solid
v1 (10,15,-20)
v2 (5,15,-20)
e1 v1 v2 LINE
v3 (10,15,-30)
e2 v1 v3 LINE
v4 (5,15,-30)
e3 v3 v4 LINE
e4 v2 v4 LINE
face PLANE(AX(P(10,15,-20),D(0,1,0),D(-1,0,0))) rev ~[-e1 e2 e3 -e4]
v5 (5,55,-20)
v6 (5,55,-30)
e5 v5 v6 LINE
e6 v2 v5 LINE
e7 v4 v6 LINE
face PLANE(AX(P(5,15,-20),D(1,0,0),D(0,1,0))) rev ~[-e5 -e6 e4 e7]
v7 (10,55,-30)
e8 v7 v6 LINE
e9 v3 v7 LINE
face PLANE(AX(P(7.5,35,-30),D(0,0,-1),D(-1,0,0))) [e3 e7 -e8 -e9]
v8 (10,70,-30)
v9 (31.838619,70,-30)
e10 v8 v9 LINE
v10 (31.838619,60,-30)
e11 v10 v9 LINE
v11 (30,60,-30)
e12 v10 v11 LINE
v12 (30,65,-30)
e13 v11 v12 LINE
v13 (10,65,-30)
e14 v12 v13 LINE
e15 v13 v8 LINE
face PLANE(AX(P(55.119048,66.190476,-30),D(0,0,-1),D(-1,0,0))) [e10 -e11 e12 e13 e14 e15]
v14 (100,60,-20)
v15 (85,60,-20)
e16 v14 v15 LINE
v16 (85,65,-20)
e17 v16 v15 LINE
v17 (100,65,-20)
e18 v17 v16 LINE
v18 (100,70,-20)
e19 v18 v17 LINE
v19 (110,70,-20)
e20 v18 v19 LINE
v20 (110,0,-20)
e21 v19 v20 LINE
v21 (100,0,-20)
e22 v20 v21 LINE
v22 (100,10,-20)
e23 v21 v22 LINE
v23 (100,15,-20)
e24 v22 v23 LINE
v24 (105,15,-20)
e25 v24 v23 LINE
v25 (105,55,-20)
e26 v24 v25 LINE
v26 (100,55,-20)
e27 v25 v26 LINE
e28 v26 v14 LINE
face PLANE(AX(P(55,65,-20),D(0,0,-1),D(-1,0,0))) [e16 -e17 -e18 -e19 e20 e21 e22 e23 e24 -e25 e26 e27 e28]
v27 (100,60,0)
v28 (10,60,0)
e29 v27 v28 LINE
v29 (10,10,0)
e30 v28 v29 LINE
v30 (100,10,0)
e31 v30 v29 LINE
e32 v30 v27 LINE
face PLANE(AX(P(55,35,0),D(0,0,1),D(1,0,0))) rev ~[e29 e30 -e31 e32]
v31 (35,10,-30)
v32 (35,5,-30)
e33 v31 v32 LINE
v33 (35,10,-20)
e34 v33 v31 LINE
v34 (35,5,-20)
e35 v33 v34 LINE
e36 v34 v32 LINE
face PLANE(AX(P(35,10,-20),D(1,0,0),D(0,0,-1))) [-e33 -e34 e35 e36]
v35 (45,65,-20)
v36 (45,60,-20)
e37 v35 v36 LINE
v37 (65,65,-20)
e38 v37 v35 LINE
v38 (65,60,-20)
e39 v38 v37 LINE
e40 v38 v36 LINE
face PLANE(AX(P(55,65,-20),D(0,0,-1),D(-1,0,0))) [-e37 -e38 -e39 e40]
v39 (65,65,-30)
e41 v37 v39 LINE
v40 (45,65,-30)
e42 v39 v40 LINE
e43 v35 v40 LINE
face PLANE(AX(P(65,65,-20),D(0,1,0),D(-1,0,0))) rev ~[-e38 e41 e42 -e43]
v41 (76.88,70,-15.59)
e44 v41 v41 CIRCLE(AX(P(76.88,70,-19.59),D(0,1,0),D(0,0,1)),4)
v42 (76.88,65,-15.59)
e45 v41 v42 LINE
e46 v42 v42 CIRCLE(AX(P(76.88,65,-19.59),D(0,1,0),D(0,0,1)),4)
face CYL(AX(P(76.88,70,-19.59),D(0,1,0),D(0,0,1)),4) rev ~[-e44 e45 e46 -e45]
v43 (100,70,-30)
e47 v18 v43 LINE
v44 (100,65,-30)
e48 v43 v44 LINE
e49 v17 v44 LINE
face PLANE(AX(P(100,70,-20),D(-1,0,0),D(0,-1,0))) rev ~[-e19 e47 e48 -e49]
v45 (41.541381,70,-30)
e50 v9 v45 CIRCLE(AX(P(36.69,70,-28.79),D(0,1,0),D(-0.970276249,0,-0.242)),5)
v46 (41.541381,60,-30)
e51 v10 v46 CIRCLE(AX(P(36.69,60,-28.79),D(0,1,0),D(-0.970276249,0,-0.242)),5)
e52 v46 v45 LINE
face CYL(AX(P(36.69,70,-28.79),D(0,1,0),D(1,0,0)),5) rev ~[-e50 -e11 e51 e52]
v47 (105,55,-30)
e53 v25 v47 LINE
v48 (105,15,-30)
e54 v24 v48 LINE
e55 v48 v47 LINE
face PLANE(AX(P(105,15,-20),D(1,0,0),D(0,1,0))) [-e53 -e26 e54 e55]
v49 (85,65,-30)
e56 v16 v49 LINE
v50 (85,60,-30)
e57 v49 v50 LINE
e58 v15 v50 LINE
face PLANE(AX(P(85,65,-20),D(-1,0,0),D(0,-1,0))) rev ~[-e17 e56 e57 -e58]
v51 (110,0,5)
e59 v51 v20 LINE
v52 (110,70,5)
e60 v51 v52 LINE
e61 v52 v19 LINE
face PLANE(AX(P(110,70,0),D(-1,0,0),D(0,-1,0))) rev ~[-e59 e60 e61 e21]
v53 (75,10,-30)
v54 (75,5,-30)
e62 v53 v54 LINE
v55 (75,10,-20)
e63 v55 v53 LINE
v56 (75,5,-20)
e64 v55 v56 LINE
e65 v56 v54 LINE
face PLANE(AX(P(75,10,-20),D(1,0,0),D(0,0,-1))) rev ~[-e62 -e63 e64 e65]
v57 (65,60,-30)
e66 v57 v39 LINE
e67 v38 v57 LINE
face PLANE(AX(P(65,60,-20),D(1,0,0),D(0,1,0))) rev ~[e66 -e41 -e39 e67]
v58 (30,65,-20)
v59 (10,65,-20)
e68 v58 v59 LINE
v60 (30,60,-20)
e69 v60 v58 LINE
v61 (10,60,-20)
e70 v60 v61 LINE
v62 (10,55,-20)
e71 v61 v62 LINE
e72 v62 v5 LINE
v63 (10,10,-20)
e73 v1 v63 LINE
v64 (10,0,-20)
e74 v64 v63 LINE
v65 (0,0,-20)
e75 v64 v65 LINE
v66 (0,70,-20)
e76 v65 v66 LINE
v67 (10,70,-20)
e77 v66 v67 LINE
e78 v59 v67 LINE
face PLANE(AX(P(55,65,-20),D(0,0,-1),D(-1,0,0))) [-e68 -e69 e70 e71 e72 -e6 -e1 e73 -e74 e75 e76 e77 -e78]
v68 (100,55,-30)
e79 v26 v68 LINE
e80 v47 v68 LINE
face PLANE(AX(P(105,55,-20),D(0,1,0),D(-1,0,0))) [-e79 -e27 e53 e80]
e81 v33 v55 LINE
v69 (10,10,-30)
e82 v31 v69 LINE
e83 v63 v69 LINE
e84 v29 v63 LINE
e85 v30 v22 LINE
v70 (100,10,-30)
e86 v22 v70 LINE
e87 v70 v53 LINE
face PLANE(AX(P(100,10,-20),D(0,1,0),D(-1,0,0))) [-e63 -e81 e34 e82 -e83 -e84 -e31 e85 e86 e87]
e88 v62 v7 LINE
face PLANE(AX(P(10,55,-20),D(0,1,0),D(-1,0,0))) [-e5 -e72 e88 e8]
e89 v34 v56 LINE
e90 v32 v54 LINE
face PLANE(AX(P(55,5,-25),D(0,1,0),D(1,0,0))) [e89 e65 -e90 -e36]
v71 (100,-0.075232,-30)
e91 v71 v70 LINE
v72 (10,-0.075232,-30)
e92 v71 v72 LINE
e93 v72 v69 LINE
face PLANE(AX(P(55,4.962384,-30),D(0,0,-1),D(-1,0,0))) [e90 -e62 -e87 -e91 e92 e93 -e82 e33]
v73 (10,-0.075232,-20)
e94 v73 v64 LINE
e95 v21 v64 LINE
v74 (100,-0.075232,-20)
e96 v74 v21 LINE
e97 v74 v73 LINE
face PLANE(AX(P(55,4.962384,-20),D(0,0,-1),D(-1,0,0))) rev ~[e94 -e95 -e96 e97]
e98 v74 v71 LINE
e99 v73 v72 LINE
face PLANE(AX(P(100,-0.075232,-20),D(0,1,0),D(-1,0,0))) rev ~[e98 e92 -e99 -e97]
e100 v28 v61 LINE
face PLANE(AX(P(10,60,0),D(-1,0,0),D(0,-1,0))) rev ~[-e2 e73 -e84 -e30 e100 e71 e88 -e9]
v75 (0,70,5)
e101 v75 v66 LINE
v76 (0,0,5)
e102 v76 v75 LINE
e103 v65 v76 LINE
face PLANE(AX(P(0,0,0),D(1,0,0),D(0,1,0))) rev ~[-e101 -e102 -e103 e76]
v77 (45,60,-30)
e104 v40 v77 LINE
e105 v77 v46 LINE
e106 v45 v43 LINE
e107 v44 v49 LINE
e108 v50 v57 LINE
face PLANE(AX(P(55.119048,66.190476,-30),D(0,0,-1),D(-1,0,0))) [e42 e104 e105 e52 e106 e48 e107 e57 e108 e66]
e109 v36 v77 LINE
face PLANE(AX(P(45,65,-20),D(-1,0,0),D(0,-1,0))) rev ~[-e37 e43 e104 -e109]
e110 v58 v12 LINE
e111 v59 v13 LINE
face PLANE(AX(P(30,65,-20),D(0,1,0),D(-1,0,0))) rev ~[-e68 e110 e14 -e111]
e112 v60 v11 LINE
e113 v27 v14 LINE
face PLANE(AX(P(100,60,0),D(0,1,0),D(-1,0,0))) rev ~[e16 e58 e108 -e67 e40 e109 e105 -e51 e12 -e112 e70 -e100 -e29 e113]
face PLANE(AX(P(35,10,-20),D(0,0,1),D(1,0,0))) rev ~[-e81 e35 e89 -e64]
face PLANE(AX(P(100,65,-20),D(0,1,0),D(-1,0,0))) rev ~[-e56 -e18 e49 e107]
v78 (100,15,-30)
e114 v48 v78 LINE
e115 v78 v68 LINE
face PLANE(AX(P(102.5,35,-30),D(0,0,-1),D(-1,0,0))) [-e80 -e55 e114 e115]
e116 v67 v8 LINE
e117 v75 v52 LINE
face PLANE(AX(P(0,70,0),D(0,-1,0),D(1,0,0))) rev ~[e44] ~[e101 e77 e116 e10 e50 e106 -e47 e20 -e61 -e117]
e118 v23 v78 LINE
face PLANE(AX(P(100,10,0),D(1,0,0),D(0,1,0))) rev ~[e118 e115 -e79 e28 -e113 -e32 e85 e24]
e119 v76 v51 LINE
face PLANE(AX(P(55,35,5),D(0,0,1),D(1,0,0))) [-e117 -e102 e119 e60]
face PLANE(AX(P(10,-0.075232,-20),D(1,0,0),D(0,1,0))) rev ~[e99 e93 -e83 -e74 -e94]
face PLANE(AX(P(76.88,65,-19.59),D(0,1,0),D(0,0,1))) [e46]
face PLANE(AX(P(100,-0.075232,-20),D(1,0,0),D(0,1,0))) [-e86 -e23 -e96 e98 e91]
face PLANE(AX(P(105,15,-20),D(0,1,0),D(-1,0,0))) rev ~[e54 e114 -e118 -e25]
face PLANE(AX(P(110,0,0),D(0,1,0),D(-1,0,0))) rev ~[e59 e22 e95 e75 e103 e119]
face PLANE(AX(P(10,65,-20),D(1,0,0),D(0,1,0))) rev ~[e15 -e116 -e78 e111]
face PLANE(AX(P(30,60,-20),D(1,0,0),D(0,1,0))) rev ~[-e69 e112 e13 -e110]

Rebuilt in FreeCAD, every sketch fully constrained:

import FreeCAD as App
import Part
import Sketcher

doc = App.newDocument("Part")
body = doc.addObject("PartDesign::Body", "Body")

sketch1 = doc.addObject("Sketcher::SketchObject", "Sketch")
body.addObject(sketch1)
sketch1.AttachmentSupport = (doc.XY_Plane, [""])
sketch1.MapMode = "FlatFace"
sketch1.addGeometry(Part.LineSegment(App.Vector(0, 70, 0), App.Vector(0, 0, 0)), False)
sketch1.addGeometry(Part.LineSegment(App.Vector(0, 0, 0), App.Vector(110, 0, 0)), False)
sketch1.addGeometry(Part.LineSegment(App.Vector(110, 0, 0), App.Vector(110, 70, 0)), False)
sketch1.addGeometry(Part.LineSegment(App.Vector(110, 70, 0), App.Vector(0, 70, 0)), False)
sketch1.addConstraint(Sketcher.Constraint("Coincident", 0, 2, 1, 1))
sketch1.addConstraint(Sketcher.Constraint("Coincident", 1, 2, 2, 1))
sketch1.addConstraint(Sketcher.Constraint("Coincident", 2, 2, 3, 1))
sketch1.addConstraint(Sketcher.Constraint("Coincident", 3, 2, 0, 1))
sketch1.addConstraint(Sketcher.Constraint("Vertical", 0))
sketch1.addConstraint(Sketcher.Constraint("Horizontal", 1))
sketch1.addConstraint(Sketcher.Constraint("Vertical", 2))
sketch1.addConstraint(Sketcher.Constraint("Horizontal", 3))
sketch1.addConstraint(Sketcher.Constraint("Coincident", 0, 2, -1, 1))
sketch1.addConstraint(Sketcher.Constraint("DistanceX", 1, 1, 1, 2, 110.0))
sketch1.addConstraint(Sketcher.Constraint("DistanceY", 0, 2, 0, 1, 70.0))
pad1 = doc.addObject("PartDesign::Pad", "Pad")
body.addObject(pad1)
pad1.Profile = sketch1
pad1.Length = 5

sketch2 = doc.addObject("Sketcher::SketchObject", "Sketch001")
body.addObject(sketch2)
sketch2.AttachmentSupport = (doc.XY_Plane, [""])
sketch2.MapMode = "FlatFace"
sketch2.addGeometry(Part.LineSegment(App.Vector(0, 0, 0), App.Vector(0, 70, 0)), False)
sketch2.addGeometry(Part.LineSegment(App.Vector(0, 70, 0), App.Vector(110, 70, 0)), False)
sketch2.addGeometry(Part.LineSegment(App.Vector(110, 70, 0), App.Vector(110, 0, 0)), False)
sketch2.addGeometry(Part.LineSegment(App.Vector(110, 0, 0), App.Vector(0, 0, 0)), False)
sketch2.addGeometry(Part.LineSegment(App.Vector(100, 60, 0), App.Vector(10, 60, 0)), False)
sketch2.addGeometry(Part.LineSegment(App.Vector(10, 60, 0), App.Vector(10, 10, 0)), False)
sketch2.addGeometry(Part.LineSegment(App.Vector(10, 10, 0), App.Vector(100, 10, 0)), False)
sketch2.addGeometry(Part.LineSegment(App.Vector(100, 10, 0), App.Vector(100, 60, 0)), False)
sketch2.addConstraint(Sketcher.Constraint("Coincident", 0, 2, 1, 1))
sketch2.addConstraint(Sketcher.Constraint("Coincident", 1, 2, 2, 1))
sketch2.addConstraint(Sketcher.Constraint("Coincident", 2, 2, 3, 1))
sketch2.addConstraint(Sketcher.Constraint("Coincident", 3, 2, 0, 1))
sketch2.addConstraint(Sketcher.Constraint("Coincident", 4, 2, 5, 1))
sketch2.addConstraint(Sketcher.Constraint("Coincident", 5, 2, 6, 1))
sketch2.addConstraint(Sketcher.Constraint("Coincident", 6, 2, 7, 1))
sketch2.addConstraint(Sketcher.Constraint("Coincident", 7, 2, 4, 1))
sketch2.addConstraint(Sketcher.Constraint("Vertical", 0))
sketch2.addConstraint(Sketcher.Constraint("Horizontal", 1))
sketch2.addConstraint(Sketcher.Constraint("Vertical", 2))
sketch2.addConstraint(Sketcher.Constraint("Horizontal", 3))
sketch2.addConstraint(Sketcher.Constraint("Horizontal", 4))
sketch2.addConstraint(Sketcher.Constraint("Vertical", 5))
sketch2.addConstraint(Sketcher.Constraint("Horizontal", 6))
sketch2.addConstraint(Sketcher.Constraint("Vertical", 7))
sketch2.addConstraint(Sketcher.Constraint("Coincident", 3, 2, -1, 1))
sketch2.addConstraint(Sketcher.Constraint("DistanceX", 1, 1, 1, 2, 110.0))
sketch2.addConstraint(Sketcher.Constraint("DistanceX", 4, 2, 4, 1, 90.0))
sketch2.addConstraint(Sketcher.Constraint("DistanceY", 0, 1, 0, 2, 70.0))
sketch2.addConstraint(Sketcher.Constraint("DistanceY", 5, 2, 5, 1, 50.0))
sketch2.addConstraint(Sketcher.Constraint("DistanceX", -1, 1, 4, 2, 10.0))
sketch2.addConstraint(Sketcher.Constraint("DistanceY", -1, 1, 4, 2, 60.0))
pad2 = doc.addObject("PartDesign::Pad", "Pad001")
body.addObject(pad2)
pad2.Profile = sketch2
pad2.Length = 20
pad2.Reversed = True

sketch3 = doc.addObject("Sketcher::SketchObject", "Sketch002")
body.addObject(sketch3)
sketch3.AttachmentSupport = (doc.XY_Plane, [""])
sketch3.MapMode = "FlatFace"
sketch3.AttachmentOffset = App.Placement(App.Vector(0, 0, -20), App.Rotation())
sketch3.addGeometry(Part.LineSegment(App.Vector(45, 60, 0), App.Vector(30, 60, 0)), False)
sketch3.addGeometry(Part.LineSegment(App.Vector(30, 60, 0), App.Vector(30, 65, 0)), False)
sketch3.addGeometry(Part.LineSegment(App.Vector(30, 65, 0), App.Vector(10, 65, 0)), False)
sketch3.addGeometry(Part.LineSegment(App.Vector(10, 65, 0), App.Vector(10, 70, 0)), False)
sketch3.addGeometry(Part.LineSegment(App.Vector(10, 70, 0), App.Vector(100, 70, 0)), False)
sketch3.addGeometry(Part.LineSegment(App.Vector(100, 70, 0), App.Vector(100, 65, 0)), False)
sketch3.addGeometry(Part.LineSegment(App.Vector(100, 65, 0), App.Vector(85, 65, 0)), False)
sketch3.addGeometry(Part.LineSegment(App.Vector(85, 65, 0), App.Vector(85, 60, 0)), False)
sketch3.addGeometry(Part.LineSegment(App.Vector(85, 60, 0), App.Vector(65, 60, 0)), False)
sketch3.addGeometry(Part.LineSegment(App.Vector(65, 60, 0), App.Vector(65, 65, 0)), False)
sketch3.addGeometry(Part.LineSegment(App.Vector(65, 65, 0), App.Vector(45, 65, 0)), False)
sketch3.addGeometry(Part.LineSegment(App.Vector(45, 65, 0), App.Vector(45, 60, 0)), False)
sketch3.addConstraint(Sketcher.Constraint("Coincident", 0, 2, 1, 1))
sketch3.addConstraint(Sketcher.Constraint("Coincident", 1, 2, 2, 1))
sketch3.addConstraint(Sketcher.Constraint("Coincident", 2, 2, 3, 1))
sketch3.addConstraint(Sketcher.Constraint("Coincident", 3, 2, 4, 1))
sketch3.addConstraint(Sketcher.Constraint("Coincident", 4, 2, 5, 1))
sketch3.addConstraint(Sketcher.Constraint("Coincident", 5, 2, 6, 1))
sketch3.addConstraint(Sketcher.Constraint("Coincident", 6, 2, 7, 1))
sketch3.addConstraint(Sketcher.Constraint("Coincident", 7, 2, 8, 1))
sketch3.addConstraint(Sketcher.Constraint("Coincident", 8, 2, 9, 1))
sketch3.addConstraint(Sketcher.Constraint("Coincident", 9, 2, 10, 1))
sketch3.addConstraint(Sketcher.Constraint("Coincident", 10, 2, 11, 1))
sketch3.addConstraint(Sketcher.Constraint("Coincident", 11, 2, 0, 1))
sketch3.addConstraint(Sketcher.Constraint("Horizontal", 0))
sketch3.addConstraint(Sketcher.Constraint("Vertical", 1))
sketch3.addConstraint(Sketcher.Constraint("Horizontal", 2))
sketch3.addConstraint(Sketcher.Constraint("Vertical", 3))
sketch3.addConstraint(Sketcher.Constraint("Horizontal", 4))
sketch3.addConstraint(Sketcher.Constraint("Vertical", 5))
sketch3.addConstraint(Sketcher.Constraint("Horizontal", 6))
sketch3.addConstraint(Sketcher.Constraint("Vertical", 7))
sketch3.addConstraint(Sketcher.Constraint("Horizontal", 8))
sketch3.addConstraint(Sketcher.Constraint("Vertical", 9))
sketch3.addConstraint(Sketcher.Constraint("Horizontal", 10))
sketch3.addConstraint(Sketcher.Constraint("Vertical", 11))
sketch3.addConstraint(Sketcher.Constraint("Horizontal", 2, 2, 5, 2))
sketch3.addConstraint(Sketcher.Constraint("Horizontal", 0, 2, 7, 2))
sketch3.addConstraint(Sketcher.Constraint("Horizontal", 6, 2, 9, 2))
sketch3.addConstraint(Sketcher.Constraint("Equal", 0, 6))
sketch3.addConstraint(Sketcher.Constraint("Equal", 2, 8))
sketch3.addConstraint(Sketcher.Constraint("Equal", 8, 10))
sketch3.addConstraint(Sketcher.Constraint("Equal", 1, 3))
sketch3.addConstraint(Sketcher.Constraint("DistanceX", 0, 2, 0, 1, 15.0))
sketch3.addConstraint(Sketcher.Constraint("DistanceX", 2, 2, 2, 1, 20.0))
sketch3.addConstraint(Sketcher.Constraint("DistanceY", 1, 1, 1, 2, 5.0))
sketch3.addConstraint(Sketcher.Constraint("DistanceX", -1, 1, 0, 2, 30.0))
sketch3.addConstraint(Sketcher.Constraint("DistanceY", -1, 1, 0, 2, 60.0))
pad3 = doc.addObject("PartDesign::Pad", "Pad002")
body.addObject(pad3)
pad3.Profile = sketch3
pad3.Length = 10
pad3.Reversed = True

sketch4 = doc.addObject("Sketcher::SketchObject", "Sketch003")
body.addObject(sketch4)
sketch4.AttachmentSupport = (doc.XZ_Plane, [""])
sketch4.MapMode = "FlatFace"
sketch4.AttachmentOffset = App.Placement(App.Vector(0, 0, -70), App.Rotation())
sketch4.addGeometry(Part.Circle(App.Vector(36.69, -28.79, 0), App.Vector(0, 0, 1), 5), False)
sketch4.addConstraint(Sketcher.Constraint("Diameter", 0, 10.0))
sketch4.addConstraint(Sketcher.Constraint("DistanceX", -1, 1, 0, 3, 36.69))
sketch4.addConstraint(Sketcher.Constraint("DistanceY", 0, 3, -1, 1, 28.79))
pocket1 = doc.addObject("PartDesign::Pocket", "Pocket")
body.addObject(pocket1)
pocket1.Profile = sketch4
pocket1.Length = 10
pocket1.Reversed = True

sketch5 = doc.addObject("Sketcher::SketchObject", "Sketch004")
body.addObject(sketch5)
sketch5.AttachmentSupport = (doc.XZ_Plane, [""])
sketch5.MapMode = "FlatFace"
sketch5.AttachmentOffset = App.Placement(App.Vector(0, 0, -70), App.Rotation())
sketch5.addGeometry(Part.Circle(App.Vector(76.88, -19.59, 0), App.Vector(0, 0, 1), 4), False)
sketch5.addConstraint(Sketcher.Constraint("Diameter", 0, 8.0))
sketch5.addConstraint(Sketcher.Constraint("DistanceX", -1, 1, 0, 3, 76.88))
sketch5.addConstraint(Sketcher.Constraint("DistanceY", 0, 3, -1, 1, 19.59))
pocket2 = doc.addObject("PartDesign::Pocket", "Pocket001")
body.addObject(pocket2)
pocket2.Profile = sketch5
pocket2.Length = 5
pocket2.Reversed = True

sketch6 = doc.addObject("Sketcher::SketchObject", "Sketch005")
body.addObject(sketch6)
sketch6.AttachmentSupport = (doc.XY_Plane, [""])
sketch6.MapMode = "FlatFace"
sketch6.AttachmentOffset = App.Placement(App.Vector(0, 0, -20), App.Rotation())
sketch6.addGeometry(Part.LineSegment(App.Vector(105, 55, 0), App.Vector(105, 15, 0)), False)
sketch6.addGeometry(Part.LineSegment(App.Vector(105, 15, 0), App.Vector(100, 15, 0)), False)
sketch6.addGeometry(Part.LineSegment(App.Vector(100, 15, 0), App.Vector(100, 55, 0)), False)
sketch6.addGeometry(Part.LineSegment(App.Vector(100, 55, 0), App.Vector(105, 55, 0)), False)
sketch6.addGeometry(Part.LineSegment(App.Vector(10, 55, 0), App.Vector(10, 15, 0)), False)
sketch6.addGeometry(Part.LineSegment(App.Vector(10, 15, 0), App.Vector(5, 15, 0)), False)
sketch6.addGeometry(Part.LineSegment(App.Vector(5, 15, 0), App.Vector(5, 55, 0)), False)
sketch6.addGeometry(Part.LineSegment(App.Vector(5, 55, 0), App.Vector(10, 55, 0)), False)
sketch6.addConstraint(Sketcher.Constraint("Coincident", 0, 2, 1, 1))
sketch6.addConstraint(Sketcher.Constraint("Coincident", 1, 2, 2, 1))
sketch6.addConstraint(Sketcher.Constraint("Coincident", 2, 2, 3, 1))
sketch6.addConstraint(Sketcher.Constraint("Coincident", 3, 2, 0, 1))
sketch6.addConstraint(Sketcher.Constraint("Coincident", 4, 2, 5, 1))
sketch6.addConstraint(Sketcher.Constraint("Coincident", 5, 2, 6, 1))
sketch6.addConstraint(Sketcher.Constraint("Coincident", 6, 2, 7, 1))
sketch6.addConstraint(Sketcher.Constraint("Coincident", 7, 2, 4, 1))
sketch6.addConstraint(Sketcher.Constraint("Vertical", 0))
sketch6.addConstraint(Sketcher.Constraint("Horizontal", 1))
sketch6.addConstraint(Sketcher.Constraint("Vertical", 2))
sketch6.addConstraint(Sketcher.Constraint("Horizontal", 3))
sketch6.addConstraint(Sketcher.Constraint("Vertical", 4))
sketch6.addConstraint(Sketcher.Constraint("Horizontal", 5))
sketch6.addConstraint(Sketcher.Constraint("Vertical", 6))
sketch6.addConstraint(Sketcher.Constraint("Horizontal", 7))
sketch6.addConstraint(Sketcher.Constraint("Horizontal", 1, 2, 4, 2))
sketch6.addConstraint(Sketcher.Constraint("Horizontal", 3, 2, 6, 2))
sketch6.addConstraint(Sketcher.Constraint("Equal", 3, 5))
sketch6.addConstraint(Sketcher.Constraint("DistanceX", 1, 2, 1, 1, 5.0))
sketch6.addConstraint(Sketcher.Constraint("DistanceY", 0, 2, 0, 1, 40.0))
sketch6.addConstraint(Sketcher.Constraint("DistanceX", -1, 1, 0, 2, 105.0))
sketch6.addConstraint(Sketcher.Constraint("DistanceY", -1, 1, 0, 2, 15.0))
sketch6.addConstraint(Sketcher.Constraint("DistanceX", -1, 1, 4, 2, 10.0))
pad4 = doc.addObject("PartDesign::Pad", "Pad003")
body.addObject(pad4)
pad4.Profile = sketch6
pad4.Length = 10
pad4.Reversed = True

sketch7 = doc.addObject("Sketcher::SketchObject", "Sketch006")
body.addObject(sketch7)
sketch7.AttachmentSupport = (doc.XY_Plane, [""])
sketch7.MapMode = "FlatFace"
sketch7.AttachmentOffset = App.Placement(App.Vector(0, 0, -20), App.Rotation())
sketch7.addGeometry(Part.LineSegment(App.Vector(100, 10, 0), App.Vector(100, -0.075232, 0)), False)
sketch7.addGeometry(Part.LineSegment(App.Vector(100, -0.075232, 0), App.Vector(10, -0.075232, 0)), False)
sketch7.addGeometry(Part.LineSegment(App.Vector(10, -0.075232, 0), App.Vector(10, 10, 0)), False)
sketch7.addGeometry(Part.LineSegment(App.Vector(10, 10, 0), App.Vector(100, 10, 0)), False)
sketch7.addConstraint(Sketcher.Constraint("Coincident", 0, 2, 1, 1))
sketch7.addConstraint(Sketcher.Constraint("Coincident", 1, 2, 2, 1))
sketch7.addConstraint(Sketcher.Constraint("Coincident", 2, 2, 3, 1))
sketch7.addConstraint(Sketcher.Constraint("Coincident", 3, 2, 0, 1))
sketch7.addConstraint(Sketcher.Constraint("Vertical", 0))
sketch7.addConstraint(Sketcher.Constraint("Horizontal", 1))
sketch7.addConstraint(Sketcher.Constraint("Vertical", 2))
sketch7.addConstraint(Sketcher.Constraint("Horizontal", 3))
sketch7.addConstraint(Sketcher.Constraint("DistanceX", 1, 2, 1, 1, 90.0))
sketch7.addConstraint(Sketcher.Constraint("DistanceX", -1, 1, 0, 2, 100.0))
sketch7.addConstraint(Sketcher.Constraint("DistanceY", -1, 1, 2, 2, 10.0))
sketch7.addConstraint(Sketcher.Constraint("DistanceY", 0, 2, 0, 1, 10.075232))
pad5 = doc.addObject("PartDesign::Pad", "Pad004")
body.addObject(pad5)
pad5.Profile = sketch7
pad5.Length = 10
pad5.Reversed = True

sketch8 = doc.addObject("Sketcher::SketchObject", "Sketch007")
body.addObject(sketch8)
sketch8.AttachmentSupport = (doc.XZ_Plane, [""])
sketch8.MapMode = "FlatFace"
sketch8.AttachmentOffset = App.Placement(App.Vector(0, 0, -10), App.Rotation())
sketch8.addGeometry(Part.LineSegment(App.Vector(35, -30, 0), App.Vector(35, -20, 0)), False)
sketch8.addGeometry(Part.LineSegment(App.Vector(35, -20, 0), App.Vector(75, -20, 0)), False)
sketch8.addGeometry(Part.LineSegment(App.Vector(75, -20, 0), App.Vector(75, -30, 0)), False)
sketch8.addGeometry(Part.LineSegment(App.Vector(75, -30, 0), App.Vector(35, -30, 0)), False)
sketch8.addConstraint(Sketcher.Constraint("Coincident", 0, 2, 1, 1))
sketch8.addConstraint(Sketcher.Constraint("Coincident", 1, 2, 2, 1))
sketch8.addConstraint(Sketcher.Constraint("Coincident", 2, 2, 3, 1))
sketch8.addConstraint(Sketcher.Constraint("Coincident", 3, 2, 0, 1))
sketch8.addConstraint(Sketcher.Constraint("Vertical", 0))
sketch8.addConstraint(Sketcher.Constraint("Horizontal", 1))
sketch8.addConstraint(Sketcher.Constraint("Vertical", 2))
sketch8.addConstraint(Sketcher.Constraint("Horizontal", 3))
sketch8.addConstraint(Sketcher.Constraint("DistanceX", 1, 1, 1, 2, 40.0))
sketch8.addConstraint(Sketcher.Constraint("DistanceY", 0, 1, 0, 2, 10.0))
sketch8.addConstraint(Sketcher.Constraint("DistanceX", -1, 1, 0, 2, 35.0))
sketch8.addConstraint(Sketcher.Constraint("DistanceY", 0, 2, -1, 1, 20.0))
pocket3 = doc.addObject("PartDesign::Pocket", "Pocket002")
body.addObject(pocket3)
pocket3.Profile = sketch8
pocket3.Length = 5
pocket3.Reversed = True

doc.recompute()
